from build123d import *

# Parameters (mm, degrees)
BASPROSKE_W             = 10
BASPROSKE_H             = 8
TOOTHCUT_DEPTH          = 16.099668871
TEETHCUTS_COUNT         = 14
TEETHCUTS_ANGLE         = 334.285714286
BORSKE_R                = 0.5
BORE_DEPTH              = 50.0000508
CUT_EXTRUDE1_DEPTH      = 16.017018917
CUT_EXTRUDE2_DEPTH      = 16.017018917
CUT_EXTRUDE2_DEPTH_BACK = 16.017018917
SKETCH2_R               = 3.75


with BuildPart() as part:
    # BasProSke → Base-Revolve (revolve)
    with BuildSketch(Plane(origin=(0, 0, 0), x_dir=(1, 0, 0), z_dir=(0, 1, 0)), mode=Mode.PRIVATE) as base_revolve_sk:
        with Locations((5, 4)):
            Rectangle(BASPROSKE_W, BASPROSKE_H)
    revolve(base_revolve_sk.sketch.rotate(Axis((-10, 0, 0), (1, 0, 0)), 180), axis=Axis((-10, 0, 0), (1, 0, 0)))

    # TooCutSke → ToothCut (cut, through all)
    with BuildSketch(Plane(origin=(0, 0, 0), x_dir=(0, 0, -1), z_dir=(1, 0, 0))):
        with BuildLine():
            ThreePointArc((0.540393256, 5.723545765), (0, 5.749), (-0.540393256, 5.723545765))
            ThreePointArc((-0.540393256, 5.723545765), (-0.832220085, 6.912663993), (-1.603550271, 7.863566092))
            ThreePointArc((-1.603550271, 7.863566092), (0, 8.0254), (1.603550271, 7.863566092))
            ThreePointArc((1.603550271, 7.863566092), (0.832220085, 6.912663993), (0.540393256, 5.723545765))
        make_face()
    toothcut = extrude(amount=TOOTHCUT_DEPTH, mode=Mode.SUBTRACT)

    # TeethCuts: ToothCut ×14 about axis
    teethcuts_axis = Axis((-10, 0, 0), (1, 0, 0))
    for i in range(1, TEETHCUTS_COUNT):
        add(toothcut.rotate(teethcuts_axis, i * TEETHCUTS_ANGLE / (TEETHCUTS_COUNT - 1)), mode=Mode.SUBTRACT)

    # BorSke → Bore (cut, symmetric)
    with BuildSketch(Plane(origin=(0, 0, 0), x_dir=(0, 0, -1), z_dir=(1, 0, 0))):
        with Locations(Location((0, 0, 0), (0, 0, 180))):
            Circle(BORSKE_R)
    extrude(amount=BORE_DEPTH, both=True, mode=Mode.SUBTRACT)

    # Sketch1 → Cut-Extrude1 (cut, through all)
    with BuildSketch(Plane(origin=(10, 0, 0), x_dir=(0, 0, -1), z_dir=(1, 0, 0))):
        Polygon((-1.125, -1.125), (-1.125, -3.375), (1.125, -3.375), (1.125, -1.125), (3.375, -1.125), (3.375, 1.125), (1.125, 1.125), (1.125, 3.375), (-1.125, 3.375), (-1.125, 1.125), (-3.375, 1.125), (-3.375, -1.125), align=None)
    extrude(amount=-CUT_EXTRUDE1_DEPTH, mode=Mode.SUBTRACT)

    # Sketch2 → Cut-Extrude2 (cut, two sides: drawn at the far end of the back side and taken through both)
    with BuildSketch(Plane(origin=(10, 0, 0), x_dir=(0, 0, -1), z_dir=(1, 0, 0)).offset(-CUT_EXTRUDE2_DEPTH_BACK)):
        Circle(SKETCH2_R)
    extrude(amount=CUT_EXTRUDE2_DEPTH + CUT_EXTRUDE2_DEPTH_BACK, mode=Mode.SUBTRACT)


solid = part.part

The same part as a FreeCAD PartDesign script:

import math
import FreeCAD as App
import Part
import Sketcher

V = App.Vector

doc = App.newDocument("Part")
params = doc.addObject("Spreadsheet::Sheet", "Params")
for row, (alias, value) in enumerate([
    ("sketch1_width", "10 mm"),
    ("sketch1_height", "8 mm"),
    ("revolution_angle", "360 deg"),
    ("sketch2_radius", "2.8 mm"),
    ("sketch3_diameter", "1 mm"),
    ("pocket2_length", "100.000102 mm"),
    ("sketch4_width", "2.25 mm"),
    ("sketch5_diameter", "7.5 mm"),
], start=1):
    params.set(f"A{row}", alias)
    params.set(f"B{row}", "=" + value)
    params.setAlias(f"B{row}", alias)

body = doc.addObject("PartDesign::Body", "Body")

# Sketch on XZ plane
sketch1 = body.newObject("Sketcher::SketchObject", "Sketch")
sketch1.AttachmentSupport = (doc.getObject("XZ_Plane"), [""])
sketch1.MapMode = "FlatFace"
sketch1.addGeometry([
    Part.LineSegment(V(0, -8, 0), V(0, 0, 0)),
    Part.LineSegment(V(0, 0, 0), V(10, 0, 0)),
    Part.LineSegment(V(10, 0, 0), V(10, -8, 0)),
    Part.LineSegment(V(10, -8, 0), V(0, -8, 0)),
], False)
sketch1.addConstraint([
    Sketcher.Constraint("Coincident", 0, 2, 1, 1),
    Sketcher.Constraint("Coincident", 1, 2, 2, 1),
    Sketcher.Constraint("Coincident", 2, 2, 3, 1),
    Sketcher.Constraint("Coincident", 3, 2, 0, 1),
    Sketcher.Constraint("Vertical", 0),
    Sketcher.Constraint("Horizontal", 1),
    Sketcher.Constraint("Vertical", 2),
    Sketcher.Constraint("Horizontal", 3),
    Sketcher.Constraint("Coincident", 0, 2, -1, 1),
    Sketcher.Constraint("DistanceX", 1, 1, 1, 2, 10.0),
    Sketcher.Constraint("DistanceY", 0, 1, 0, 2, 8.0),
])
sketch1.setExpression("Constraints[9]", "Params.sketch1_width")
sketch1.setExpression("Constraints[10]", "Params.sketch1_height")
revolution = body.newObject("PartDesign::Revolution", "Revolution")
revolution.Profile = sketch1
revolution.ReferenceAxis = (sketch1, ["H_Axis"])
revolution.setExpression("Angle", "Params.revolution_angle")

# Sketch on YZ plane
sketch2 = body.newObject("Sketcher::SketchObject", "Sketch001")
sketch2.AttachmentSupport = (doc.getObject("YZ_Plane"), [""])
sketch2.MapMode = "FlatFace"
sketch2.addGeometry([
    Part.ArcOfCircle(Part.Circle(V(0, 0, 0), V(0, 0, 1), 5.7), math.radians(-5.39), math.radians(5.39)),
    Part.ArcOfCircle(Part.Circle(V(5.7, -3.3, 0), V(0, 0, 1), 2.8), math.radians(38), math.radians(89)),
    Part.ArcOfCircle(Part.Circle(V(0, 0, 0), V(0, 0, 1), 8), math.radians(-12), math.radians(12)),
    Part.ArcOfCircle(Part.Circle(V(5.7, 3.3, 0), V(0, 0, 1), 2.8), math.radians(-89), math.radians(-38)),
], False)
sketch2.addConstraint([
    Sketcher.Constraint("Coincident", 0, 1, 1, 2),
    Sketcher.Constraint("Coincident", 1, 1, 2, 1),
    Sketcher.Constraint("Coincident", 2, 2, 3, 2),
    Sketcher.Constraint("Coincident", 3, 1, 0, 2),
    Sketcher.Constraint("Coincident", 0, 3, -1, 1),
    Sketcher.Constraint("Coincident", 2, 3, -1, 1),
    Sketcher.Constraint("Equal", 1, 3),
    Sketcher.Constraint("Symmetric", 1, 3, 3, 3, -1),
    Sketcher.Constraint("Radius", 1, 2.8),
    Sketcher.Constraint("Radius", 0, 5.749),
    Sketcher.Constraint("Radius", 2, 8.0254),
    Sketcher.Constraint("DistanceY", 1, 1, 2, 2, 3.207101),
    Sketcher.Constraint("DistanceY", 1, 3, -1, 1, 3.33982),
])
sketch2.setExpression("Constraints[8]", "Params.sketch2_radius")
pocket1 = body.newObject("PartDesign::Pocket", "Pocket")
pocket1.Profile = sketch2
pocket1.Type = "ThroughAll"
pocket1.Reversed = True
doc.recompute()

polarpattern = body.newObject("PartDesign::PolarPattern", "PolarPattern")
polarpattern.Originals = [pocket1]
polarpattern.Axis = (doc.getObject("X_Axis"), [""])
polarpattern.Angle = 360
polarpattern.Occurrences = 14
body.Tip = polarpattern

# Sketch on YZ plane
sketch3 = body.newObject("Sketcher::SketchObject", "Sketch002")
sketch3.AttachmentSupport = (doc.getObject("YZ_Plane"), [""])
sketch3.MapMode = "FlatFace"
sketch3.addGeometry(Part.Circle(V(0, 0, 0), V(0, 0, 1), 0.5), False)
sketch3.addConstraint([
    Sketcher.Constraint("Coincident", 0, 3, -1, 1),
    Sketcher.Constraint("Diameter", 0, 1.0),
])
sketch3.setExpression("Constraints[1]", "Params.sketch3_diameter")
pocket2 = body.newObject("PartDesign::Pocket", "Pocket001")
pocket2.Profile = sketch3
pocket2.setExpression("Length", "Params.pocket2_length")
pocket2.Midplane = True

# Sketch on YZ plane
sketch4 = body.newObject("Sketcher::SketchObject", "Sketch003")
sketch4.AttachmentSupport = (doc.getObject("YZ_Plane"), [""])
sketch4.MapMode = "FlatFace"
sketch4.AttachmentOffset = App.Placement(V(0, 0, 10), App.Rotation())
sketch4.addGeometry([
    Part.LineSegment(V(-1.1, 1.1, 0), V(-3.4, 1.1, 0)),  # 0
    Part.LineSegment(V(-3.4, 1.1, 0), V(-3.4, -1.1, 0)),  # 1
    Part.LineSegment(V(-3.4, -1.1, 0), V(-1.1, -1.1, 0)),  # 2
    Part.LineSegment(V(-1.1, -1.1, 0), V(-1.1, -3.4, 0)),  # 3
    Part.LineSegment(V(-1.1, -3.4, 0), V(1.1, -3.4, 0)),  # 4
    Part.LineSegment(V(1.1, -3.4, 0), V(1.1, -1.1, 0)),  # 5
    Part.LineSegment(V(1.1, -1.1, 0), V(3.4, -1.1, 0)),  # 6
    Part.LineSegment(V(3.4, -1.1, 0), V(3.4, 1.1, 0)),  # 7
    Part.LineSegment(V(3.4, 1.1, 0), V(1.1, 1.1, 0)),  # 8
    Part.LineSegment(V(1.1, 1.1, 0), V(1.1, 3.4, 0)),  # 9
    Part.LineSegment(V(1.1, 3.4, 0), V(-1.1, 3.4, 0)),  # 10
    Part.LineSegment(V(-1.1, 3.4, 0), V(-1.1, 1.1, 0)),  # 11
], False)
sketch4.addConstraint([
    Sketcher.Constraint("Coincident", 0, 2, 1, 1),
    Sketcher.Constraint("Coincident", 1, 2, 2, 1),
    Sketcher.Constraint("Coincident", 2, 2, 3, 1),
    Sketcher.Constraint("Coincident", 3, 2, 4, 1),
    Sketcher.Constraint("Coincident", 4, 2, 5, 1),
    Sketcher.Constraint("Coincident", 5, 2, 6, 1),
    Sketcher.Constraint("Coincident", 6, 2, 7, 1),
    Sketcher.Constraint("Coincident", 7, 2, 8, 1),
    Sketcher.Constraint("Coincident", 8, 2, 9, 1),
    Sketcher.Constraint("Coincident", 9, 2, 10, 1),
    Sketcher.Constraint("Coincident", 10, 2, 11, 1),
    Sketcher.Constraint("Coincident", 11, 2, 0, 1),
    Sketcher.Constraint("Horizontal", 0),
    Sketcher.Constraint("Vertical", 1),
    Sketcher.Constraint("Horizontal", 2),
    Sketcher.Constraint("Vertical", 3),
    Sketcher.Constraint("Horizontal", 4),
    Sketcher.Constraint("Vertical", 5),
    Sketcher.Constraint("Horizontal", 6),
    Sketcher.Constraint("Vertical", 7),
    Sketcher.Constraint("Horizontal", 8),
    Sketcher.Constraint("Vertical", 9),
    Sketcher.Constraint("Horizontal", 10),
    Sketcher.Constraint("Vertical", 11),
    Sketcher.Constraint("Symmetric", 0, 2, 6, 2, -1, 1),
    Sketcher.Constraint("Symmetric", 2, 2, 8, 2, -1, 1),
    Sketcher.Constraint("Symmetric", 4, 2, 10, 2, -1, 1),
    Sketcher.Constraint("Symmetric", 2, 2, 5, 2, -2),
    Sketcher.Constraint("Equal", 2, 4),
    Sketcher.Constraint("Equal", 10, 1),
    Sketcher.Constraint("Equal", 1, 3),
    Sketcher.Constraint("DistanceX", 0, 2, 0, 1, 2.25),
])
sketch4.setExpression("Constraints[31]", "Params.sketch4_width")
pocket3 = body.newObject("PartDesign::Pocket", "Pocket002")
pocket3.Profile = sketch4
pocket3.Type = "ThroughAll"

# Sketch on YZ plane
sketch5 = body.newObject("Sketcher::SketchObject", "Sketch004")
sketch5.AttachmentSupport = (doc.getObject("YZ_Plane"), [""])
sketch5.MapMode = "FlatFace"
sketch5.AttachmentOffset = App.Placement(V(0, 0, 10), App.Rotation())
sketch5.addGeometry(Part.Circle(V(0, 0, 0), V(0, 0, 1), 3.8), False)
sketch5.addConstraint([
    Sketcher.Constraint("Coincident", 0, 3, -1, 1),
    Sketcher.Constraint("Diameter", 0, 7.5),
])
sketch5.setExpression("Constraints[1]", "Params.sketch5_diameter")
pocket4 = body.newObject("PartDesign::Pocket", "Pocket003")
pocket4.Profile = sketch5
pocket4.Type = "ThroughAll"
pocket4.Midplane = True

doc.recompute()
